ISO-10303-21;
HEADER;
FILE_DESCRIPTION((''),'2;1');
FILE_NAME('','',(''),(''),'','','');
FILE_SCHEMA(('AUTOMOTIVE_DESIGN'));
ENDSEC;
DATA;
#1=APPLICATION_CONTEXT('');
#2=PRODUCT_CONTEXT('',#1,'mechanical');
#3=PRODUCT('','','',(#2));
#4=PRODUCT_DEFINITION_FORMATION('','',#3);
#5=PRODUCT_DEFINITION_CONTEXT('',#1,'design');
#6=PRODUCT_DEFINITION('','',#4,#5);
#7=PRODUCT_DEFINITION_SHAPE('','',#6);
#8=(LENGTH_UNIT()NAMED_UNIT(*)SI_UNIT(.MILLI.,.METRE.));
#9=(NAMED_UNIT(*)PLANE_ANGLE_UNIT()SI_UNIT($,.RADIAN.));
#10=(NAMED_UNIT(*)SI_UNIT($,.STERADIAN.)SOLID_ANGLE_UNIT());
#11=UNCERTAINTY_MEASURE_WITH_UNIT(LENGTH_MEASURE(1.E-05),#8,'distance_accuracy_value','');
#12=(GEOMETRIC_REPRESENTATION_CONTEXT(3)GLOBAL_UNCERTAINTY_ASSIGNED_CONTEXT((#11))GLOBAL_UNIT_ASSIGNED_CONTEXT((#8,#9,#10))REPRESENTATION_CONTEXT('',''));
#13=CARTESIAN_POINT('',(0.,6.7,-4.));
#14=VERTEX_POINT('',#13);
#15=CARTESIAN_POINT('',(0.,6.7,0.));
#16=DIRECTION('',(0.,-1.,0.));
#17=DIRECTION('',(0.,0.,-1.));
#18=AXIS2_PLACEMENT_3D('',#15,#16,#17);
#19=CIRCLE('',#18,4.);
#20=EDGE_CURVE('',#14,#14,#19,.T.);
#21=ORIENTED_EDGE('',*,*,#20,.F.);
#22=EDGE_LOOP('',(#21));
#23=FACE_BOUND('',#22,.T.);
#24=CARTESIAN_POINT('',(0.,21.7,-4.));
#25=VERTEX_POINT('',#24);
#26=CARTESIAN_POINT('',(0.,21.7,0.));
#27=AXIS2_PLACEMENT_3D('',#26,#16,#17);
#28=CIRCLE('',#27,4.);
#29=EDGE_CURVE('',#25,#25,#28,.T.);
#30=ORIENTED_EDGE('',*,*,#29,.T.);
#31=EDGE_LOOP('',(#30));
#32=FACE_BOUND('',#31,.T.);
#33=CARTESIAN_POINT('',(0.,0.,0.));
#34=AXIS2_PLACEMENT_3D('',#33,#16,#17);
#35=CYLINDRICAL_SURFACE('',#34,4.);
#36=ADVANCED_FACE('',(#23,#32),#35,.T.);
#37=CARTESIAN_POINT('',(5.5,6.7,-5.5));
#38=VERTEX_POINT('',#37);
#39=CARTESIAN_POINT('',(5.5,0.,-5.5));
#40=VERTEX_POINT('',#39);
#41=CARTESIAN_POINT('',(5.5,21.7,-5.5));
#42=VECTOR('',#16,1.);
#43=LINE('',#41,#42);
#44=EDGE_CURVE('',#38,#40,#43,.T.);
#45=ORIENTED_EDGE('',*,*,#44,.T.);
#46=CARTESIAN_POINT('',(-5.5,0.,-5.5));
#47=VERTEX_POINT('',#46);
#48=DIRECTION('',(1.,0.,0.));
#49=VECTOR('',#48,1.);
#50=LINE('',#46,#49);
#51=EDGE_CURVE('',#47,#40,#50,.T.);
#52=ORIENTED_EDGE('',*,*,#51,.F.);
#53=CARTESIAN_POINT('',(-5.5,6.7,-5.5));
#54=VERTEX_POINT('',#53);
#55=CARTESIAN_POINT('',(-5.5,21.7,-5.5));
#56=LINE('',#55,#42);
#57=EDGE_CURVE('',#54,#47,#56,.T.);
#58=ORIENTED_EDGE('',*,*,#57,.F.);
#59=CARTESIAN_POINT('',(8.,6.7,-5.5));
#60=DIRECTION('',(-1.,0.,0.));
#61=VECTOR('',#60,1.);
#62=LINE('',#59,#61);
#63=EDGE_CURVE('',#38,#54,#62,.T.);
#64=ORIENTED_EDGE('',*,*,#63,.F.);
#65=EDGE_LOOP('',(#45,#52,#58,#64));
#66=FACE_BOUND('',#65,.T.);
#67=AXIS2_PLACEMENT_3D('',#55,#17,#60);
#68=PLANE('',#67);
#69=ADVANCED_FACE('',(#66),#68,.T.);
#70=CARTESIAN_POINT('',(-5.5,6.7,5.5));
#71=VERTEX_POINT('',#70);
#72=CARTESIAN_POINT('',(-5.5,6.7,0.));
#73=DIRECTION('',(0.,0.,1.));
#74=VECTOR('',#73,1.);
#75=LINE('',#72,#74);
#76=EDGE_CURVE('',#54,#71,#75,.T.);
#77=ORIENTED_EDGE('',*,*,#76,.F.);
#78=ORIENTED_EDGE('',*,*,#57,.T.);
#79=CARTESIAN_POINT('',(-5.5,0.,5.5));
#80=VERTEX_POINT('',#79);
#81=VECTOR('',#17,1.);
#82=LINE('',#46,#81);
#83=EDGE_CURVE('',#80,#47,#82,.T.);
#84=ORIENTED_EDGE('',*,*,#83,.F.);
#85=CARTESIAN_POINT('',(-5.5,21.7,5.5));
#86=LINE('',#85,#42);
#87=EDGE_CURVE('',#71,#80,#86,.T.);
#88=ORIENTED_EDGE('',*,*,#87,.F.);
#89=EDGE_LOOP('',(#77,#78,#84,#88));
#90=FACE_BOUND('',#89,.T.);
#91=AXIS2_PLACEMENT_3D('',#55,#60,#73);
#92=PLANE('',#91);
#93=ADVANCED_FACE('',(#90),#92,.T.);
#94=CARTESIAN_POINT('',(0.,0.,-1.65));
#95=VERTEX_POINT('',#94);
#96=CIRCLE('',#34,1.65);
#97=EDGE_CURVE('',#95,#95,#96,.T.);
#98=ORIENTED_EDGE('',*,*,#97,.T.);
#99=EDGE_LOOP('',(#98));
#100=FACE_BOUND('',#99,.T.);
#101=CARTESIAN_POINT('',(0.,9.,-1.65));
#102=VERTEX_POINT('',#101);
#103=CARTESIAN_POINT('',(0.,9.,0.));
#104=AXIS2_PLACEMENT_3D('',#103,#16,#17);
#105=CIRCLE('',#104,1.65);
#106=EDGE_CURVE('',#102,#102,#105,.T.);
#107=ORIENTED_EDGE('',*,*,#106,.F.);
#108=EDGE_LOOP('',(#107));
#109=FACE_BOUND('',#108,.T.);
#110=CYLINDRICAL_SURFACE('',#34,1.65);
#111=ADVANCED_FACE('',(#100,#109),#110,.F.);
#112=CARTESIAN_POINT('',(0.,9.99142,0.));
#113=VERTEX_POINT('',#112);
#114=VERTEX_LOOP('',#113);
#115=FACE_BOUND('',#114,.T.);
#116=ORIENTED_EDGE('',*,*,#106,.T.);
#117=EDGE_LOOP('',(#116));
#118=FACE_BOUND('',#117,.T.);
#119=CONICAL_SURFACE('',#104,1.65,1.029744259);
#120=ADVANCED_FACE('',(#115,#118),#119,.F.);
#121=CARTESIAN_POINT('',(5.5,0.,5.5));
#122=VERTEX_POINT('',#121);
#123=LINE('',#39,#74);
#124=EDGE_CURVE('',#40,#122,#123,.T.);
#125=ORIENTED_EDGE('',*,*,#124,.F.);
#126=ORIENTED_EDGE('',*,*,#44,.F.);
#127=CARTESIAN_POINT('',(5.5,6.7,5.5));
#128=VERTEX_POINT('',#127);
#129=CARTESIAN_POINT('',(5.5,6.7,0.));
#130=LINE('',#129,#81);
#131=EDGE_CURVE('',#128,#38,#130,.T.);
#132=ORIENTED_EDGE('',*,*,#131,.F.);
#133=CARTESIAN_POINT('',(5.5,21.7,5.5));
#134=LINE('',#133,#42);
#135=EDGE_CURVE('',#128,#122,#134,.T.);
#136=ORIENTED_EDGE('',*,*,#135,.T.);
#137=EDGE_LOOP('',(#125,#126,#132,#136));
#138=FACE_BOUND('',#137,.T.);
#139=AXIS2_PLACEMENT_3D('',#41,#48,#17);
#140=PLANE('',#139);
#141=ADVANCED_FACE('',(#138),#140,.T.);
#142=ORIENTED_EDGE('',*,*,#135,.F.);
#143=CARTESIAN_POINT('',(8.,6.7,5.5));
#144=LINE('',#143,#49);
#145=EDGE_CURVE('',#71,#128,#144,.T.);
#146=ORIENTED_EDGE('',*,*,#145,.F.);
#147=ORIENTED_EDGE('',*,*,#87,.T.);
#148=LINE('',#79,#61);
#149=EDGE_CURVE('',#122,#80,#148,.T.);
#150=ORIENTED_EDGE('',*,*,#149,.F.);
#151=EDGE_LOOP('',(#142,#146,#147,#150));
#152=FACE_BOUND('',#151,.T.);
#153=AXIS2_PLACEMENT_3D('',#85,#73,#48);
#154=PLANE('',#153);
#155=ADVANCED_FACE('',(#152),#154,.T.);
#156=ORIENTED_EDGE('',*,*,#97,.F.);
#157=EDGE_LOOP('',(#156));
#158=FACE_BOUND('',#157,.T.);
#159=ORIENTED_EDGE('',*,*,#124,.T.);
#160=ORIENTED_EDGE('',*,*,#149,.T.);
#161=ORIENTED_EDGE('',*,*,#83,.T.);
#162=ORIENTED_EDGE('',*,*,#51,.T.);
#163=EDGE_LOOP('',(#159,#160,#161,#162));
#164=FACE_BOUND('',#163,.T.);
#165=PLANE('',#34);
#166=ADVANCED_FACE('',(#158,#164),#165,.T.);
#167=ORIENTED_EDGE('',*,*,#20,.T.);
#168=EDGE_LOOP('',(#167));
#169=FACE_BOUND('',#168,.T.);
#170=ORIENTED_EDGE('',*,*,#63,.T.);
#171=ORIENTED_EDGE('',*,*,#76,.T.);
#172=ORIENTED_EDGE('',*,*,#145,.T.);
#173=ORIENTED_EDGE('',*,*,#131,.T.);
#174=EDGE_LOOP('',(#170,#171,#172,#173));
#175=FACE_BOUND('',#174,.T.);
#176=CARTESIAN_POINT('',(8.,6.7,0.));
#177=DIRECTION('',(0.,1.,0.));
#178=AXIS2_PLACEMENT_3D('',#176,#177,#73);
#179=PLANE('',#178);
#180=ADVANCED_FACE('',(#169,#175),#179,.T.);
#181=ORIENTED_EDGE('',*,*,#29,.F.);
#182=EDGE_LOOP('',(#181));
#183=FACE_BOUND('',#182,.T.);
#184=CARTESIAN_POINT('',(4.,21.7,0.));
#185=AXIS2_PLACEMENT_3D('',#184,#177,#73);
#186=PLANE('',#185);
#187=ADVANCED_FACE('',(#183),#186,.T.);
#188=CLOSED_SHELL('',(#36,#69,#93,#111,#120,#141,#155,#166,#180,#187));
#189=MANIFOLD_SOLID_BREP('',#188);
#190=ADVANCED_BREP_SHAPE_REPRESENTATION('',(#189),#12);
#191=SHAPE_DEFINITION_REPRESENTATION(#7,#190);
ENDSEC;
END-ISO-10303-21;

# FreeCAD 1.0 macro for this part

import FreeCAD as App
import Part
import Sketcher

V = App.Vector
Q = App.Units.Quantity

doc = App.newDocument("Part")
params = doc.addObject("Spreadsheet::Sheet", "Params")
for row, (alias, value) in enumerate([
    ("sketch1_width", "8 mm"),
    ("sketch1_height", "15 mm"),
    ("sketch1_height2", "6.7 mm"),
    ("revolution_angle", "360 deg"),
    ("sketch2_width", "11 mm"),
    ("sketch2_width2", "24.27 mm"),
    ("sketch3_diameter", "3.3 mm"),
    ("hole_diameter", "3.3 mm"),
    ("hole_depth", "9 mm"),
], start=1):
    params.set(f"A{row}", alias)
    params.set(f"B{row}", "=" + value)
    params.setAlias(f"B{row}", alias)

body = doc.addObject("PartDesign::Body", "Body")

sketch1 = doc.addObject("Sketcher::SketchObject", "Sketch")
body.addObject(sketch1)
sketch1.AttachmentSupport = (doc.XY_Plane, [""])
sketch1.MapMode = "FlatFace"
sketch1.addGeometry(Part.LineSegment(V(0, 0, 0), V(8, 0, 0)), False)
sketch1.addGeometry(Part.LineSegment(V(8, 0, 0), V(8, 6.7, 0)), False)
sketch1.addGeometry(Part.LineSegment(V(8, 6.7, 0), V(4, 6.7, 0)), False)
sketch1.addGeometry(Part.LineSegment(V(4, 6.7, 0), V(4, 21.7, 0)), False)
sketch1.addGeometry(Part.LineSegment(V(4, 21.7, 0), V(0, 21.7, 0)), False)
sketch1.addGeometry(Part.LineSegment(V(0, 21.7, 0), V(0, 0, 0)), False)
sketch1.addConstraint(Sketcher.Constraint("Coincident", 0, 2, 1, 1))
sketch1.addConstraint(Sketcher.Constraint("Coincident", 1, 2, 2, 1))
sketch1.addConstraint(Sketcher.Constraint("Coincident", 2, 2, 3, 1))
sketch1.addConstraint(Sketcher.Constraint("Coincident", 3, 2, 4, 1))
sketch1.addConstraint(Sketcher.Constraint("Coincident", 4, 2, 5, 1))
sketch1.addConstraint(Sketcher.Constraint("Coincident", 5, 2, 0, 1))
sketch1.addConstraint(Sketcher.Constraint("Horizontal", 0))
sketch1.addConstraint(Sketcher.Constraint("Vertical", 1))
sketch1.addConstraint(Sketcher.Constraint("Horizontal", 2))
sketch1.addConstraint(Sketcher.Constraint("Vertical", 3))
sketch1.addConstraint(Sketcher.Constraint("Horizontal", 4))
sketch1.addConstraint(Sketcher.Constraint("Vertical", 5))
sketch1.addConstraint(Sketcher.Constraint("Coincident", 5, 2, -1, 1))
sketch1.addConstraint(Sketcher.Constraint("Equal", 2, 4))
sketch1.addConstraint(Sketcher.Constraint("DistanceX", 0, 1, 0, 2, Q("8 mm")))
sketch1.addConstraint(Sketcher.Constraint("DistanceY", 3, 1, 3, 2, Q("15 mm")))
sketch1.addConstraint(Sketcher.Constraint("DistanceY", 1, 1, 1, 2, Q("6.7 mm")))
sketch1.setExpression("Constraints[14]", "Params.sketch1_width")
sketch1.setExpression("Constraints[15]", "Params.sketch1_height")
sketch1.setExpression("Constraints[16]", "Params.sketch1_height2")
revolution = doc.addObject("PartDesign::Revolution", "Revolution")
body.addObject(revolution)
revolution.Profile = sketch1
revolution.ReferenceAxis = (sketch1, ["V_Axis"])
revolution.setExpression("Angle", "Params.revolution_angle")

sketch2 = doc.addObject("Sketcher::SketchObject", "Sketch001")
body.addObject(sketch2)
sketch2.AttachmentSupport = (doc.XZ_Plane, [""])
sketch2.MapMode = "FlatFace"
sketch2.addGeometry(Part.LineSegment(V(-12, 12, 0), V(-12, -12, 0)), False)
sketch2.addGeometry(Part.LineSegment(V(-12, -12, 0), V(12, -12, 0)), False)
sketch2.addGeometry(Part.LineSegment(V(12, -12, 0), V(12, 12, 0)), False)
sketch2.addGeometry(Part.LineSegment(V(12, 12, 0), V(-12, 12, 0)), False)
sketch2.addGeometry(Part.LineSegment(V(6, -6, 0), V(-6, -6, 0)), False)
sketch2.addGeometry(Part.LineSegment(V(-6, -6, 0), V(-6, 6, 0)), False)
sketch2.addGeometry(Part.LineSegment(V(-6, 6, 0), V(6, 6, 0)), False)
sketch2.addGeometry(Part.LineSegment(V(6, 6, 0), V(6, -6, 0)), False)
sketch2.addConstraint(Sketcher.Constraint("Coincident", 0, 2, 1, 1))
sketch2.addConstraint(Sketcher.Constraint("Coincident", 1, 2, 2, 1))
sketch2.addConstraint(Sketcher.Constraint("Coincident", 2, 2, 3, 1))
sketch2.addConstraint(Sketcher.Constraint("Coincident", 3, 2, 0, 1))
sketch2.addConstraint(Sketcher.Constraint("Coincident", 4, 2, 5, 1))
sketch2.addConstraint(Sketcher.Constraint("Coincident", 5, 2, 6, 1))
sketch2.addConstraint(Sketcher.Constraint("Coincident", 6, 2, 7, 1))
sketch2.addConstraint(Sketcher.Constraint("Coincident", 7, 2, 4, 1))
sketch2.addConstraint(Sketcher.Constraint("Vertical", 0))
sketch2.addConstraint(Sketcher.Constraint("Horizontal", 1))
sketch2.addConstraint(Sketcher.Constraint("Vertical", 2))
sketch2.addConstraint(Sketcher.Constraint("Horizontal", 3))
sketch2.addConstraint(Sketcher.Constraint("Horizontal", 4))
sketch2.addConstraint(Sketcher.Constraint("Vertical", 5))
sketch2.addConstraint(Sketcher.Constraint("Horizontal", 6))
sketch2.addConstraint(Sketcher.Constraint("Vertical", 7))
sketch2.addConstraint(Sketcher.Constraint("Symmetric", 0, 2, 2, 2, -1, 1))
sketch2.addConstraint(Sketcher.Constraint("Symmetric", 4, 2, 6, 2, -1, 1))
sketch2.addConstraint(Sketcher.Constraint("Equal", 3, 0))
sketch2.addConstraint(Sketcher.Constraint("Equal", 6, 5))
sketch2.addConstraint(Sketcher.Constraint("DistanceX", 4, 2, 4, 1, Q("11 mm")))
sketch2.addConstraint(Sketcher.Constraint("DistanceX", 1, 1, 1, 2, Q("24.27 mm")))
sketch2.setExpression("Constraints[20]", "Params.sketch2_width")
sketch2.setExpression("Constraints[21]", "Params.sketch2_width2")
pocket1 = doc.addObject("PartDesign::Pocket", "Pocket")
body.addObject(pocket1)
pocket1.Profile = sketch2
pocket1.Type = "ThroughAll"

sketch3 = doc.addObject("Sketcher::SketchObject", "Sketch002")
body.addObject(sketch3)
sketch3.AttachmentSupport = (doc.XZ_Plane, [""])
sketch3.MapMode = "FlatFace"
sketch3.addGeometry(Part.Circle(V(0, 0, 0), V(0, 0, 1), 1.6), False)
sketch3.addConstraint(Sketcher.Constraint("Coincident", 0, 3, -1, 1))
sketch3.addConstraint(Sketcher.Constraint("Diameter", 0, Q("3.3 mm")))
sketch3.setExpression("Constraints[1]", "Params.sketch3_diameter")
doc.recompute()
hole = doc.addObject("PartDesign::Hole", "Hole")
body.addObject(hole)
hole.Profile = sketch3
hole.ThreadType = "None"
hole.setExpression("Diameter", "Params.hole_diameter")
hole.DepthType = "Dimension"
hole.setExpression("Depth", "Params.hole_depth")
hole.DrillPoint = "Angled"
hole.DrillPointAngle = 118

doc.recompute()
